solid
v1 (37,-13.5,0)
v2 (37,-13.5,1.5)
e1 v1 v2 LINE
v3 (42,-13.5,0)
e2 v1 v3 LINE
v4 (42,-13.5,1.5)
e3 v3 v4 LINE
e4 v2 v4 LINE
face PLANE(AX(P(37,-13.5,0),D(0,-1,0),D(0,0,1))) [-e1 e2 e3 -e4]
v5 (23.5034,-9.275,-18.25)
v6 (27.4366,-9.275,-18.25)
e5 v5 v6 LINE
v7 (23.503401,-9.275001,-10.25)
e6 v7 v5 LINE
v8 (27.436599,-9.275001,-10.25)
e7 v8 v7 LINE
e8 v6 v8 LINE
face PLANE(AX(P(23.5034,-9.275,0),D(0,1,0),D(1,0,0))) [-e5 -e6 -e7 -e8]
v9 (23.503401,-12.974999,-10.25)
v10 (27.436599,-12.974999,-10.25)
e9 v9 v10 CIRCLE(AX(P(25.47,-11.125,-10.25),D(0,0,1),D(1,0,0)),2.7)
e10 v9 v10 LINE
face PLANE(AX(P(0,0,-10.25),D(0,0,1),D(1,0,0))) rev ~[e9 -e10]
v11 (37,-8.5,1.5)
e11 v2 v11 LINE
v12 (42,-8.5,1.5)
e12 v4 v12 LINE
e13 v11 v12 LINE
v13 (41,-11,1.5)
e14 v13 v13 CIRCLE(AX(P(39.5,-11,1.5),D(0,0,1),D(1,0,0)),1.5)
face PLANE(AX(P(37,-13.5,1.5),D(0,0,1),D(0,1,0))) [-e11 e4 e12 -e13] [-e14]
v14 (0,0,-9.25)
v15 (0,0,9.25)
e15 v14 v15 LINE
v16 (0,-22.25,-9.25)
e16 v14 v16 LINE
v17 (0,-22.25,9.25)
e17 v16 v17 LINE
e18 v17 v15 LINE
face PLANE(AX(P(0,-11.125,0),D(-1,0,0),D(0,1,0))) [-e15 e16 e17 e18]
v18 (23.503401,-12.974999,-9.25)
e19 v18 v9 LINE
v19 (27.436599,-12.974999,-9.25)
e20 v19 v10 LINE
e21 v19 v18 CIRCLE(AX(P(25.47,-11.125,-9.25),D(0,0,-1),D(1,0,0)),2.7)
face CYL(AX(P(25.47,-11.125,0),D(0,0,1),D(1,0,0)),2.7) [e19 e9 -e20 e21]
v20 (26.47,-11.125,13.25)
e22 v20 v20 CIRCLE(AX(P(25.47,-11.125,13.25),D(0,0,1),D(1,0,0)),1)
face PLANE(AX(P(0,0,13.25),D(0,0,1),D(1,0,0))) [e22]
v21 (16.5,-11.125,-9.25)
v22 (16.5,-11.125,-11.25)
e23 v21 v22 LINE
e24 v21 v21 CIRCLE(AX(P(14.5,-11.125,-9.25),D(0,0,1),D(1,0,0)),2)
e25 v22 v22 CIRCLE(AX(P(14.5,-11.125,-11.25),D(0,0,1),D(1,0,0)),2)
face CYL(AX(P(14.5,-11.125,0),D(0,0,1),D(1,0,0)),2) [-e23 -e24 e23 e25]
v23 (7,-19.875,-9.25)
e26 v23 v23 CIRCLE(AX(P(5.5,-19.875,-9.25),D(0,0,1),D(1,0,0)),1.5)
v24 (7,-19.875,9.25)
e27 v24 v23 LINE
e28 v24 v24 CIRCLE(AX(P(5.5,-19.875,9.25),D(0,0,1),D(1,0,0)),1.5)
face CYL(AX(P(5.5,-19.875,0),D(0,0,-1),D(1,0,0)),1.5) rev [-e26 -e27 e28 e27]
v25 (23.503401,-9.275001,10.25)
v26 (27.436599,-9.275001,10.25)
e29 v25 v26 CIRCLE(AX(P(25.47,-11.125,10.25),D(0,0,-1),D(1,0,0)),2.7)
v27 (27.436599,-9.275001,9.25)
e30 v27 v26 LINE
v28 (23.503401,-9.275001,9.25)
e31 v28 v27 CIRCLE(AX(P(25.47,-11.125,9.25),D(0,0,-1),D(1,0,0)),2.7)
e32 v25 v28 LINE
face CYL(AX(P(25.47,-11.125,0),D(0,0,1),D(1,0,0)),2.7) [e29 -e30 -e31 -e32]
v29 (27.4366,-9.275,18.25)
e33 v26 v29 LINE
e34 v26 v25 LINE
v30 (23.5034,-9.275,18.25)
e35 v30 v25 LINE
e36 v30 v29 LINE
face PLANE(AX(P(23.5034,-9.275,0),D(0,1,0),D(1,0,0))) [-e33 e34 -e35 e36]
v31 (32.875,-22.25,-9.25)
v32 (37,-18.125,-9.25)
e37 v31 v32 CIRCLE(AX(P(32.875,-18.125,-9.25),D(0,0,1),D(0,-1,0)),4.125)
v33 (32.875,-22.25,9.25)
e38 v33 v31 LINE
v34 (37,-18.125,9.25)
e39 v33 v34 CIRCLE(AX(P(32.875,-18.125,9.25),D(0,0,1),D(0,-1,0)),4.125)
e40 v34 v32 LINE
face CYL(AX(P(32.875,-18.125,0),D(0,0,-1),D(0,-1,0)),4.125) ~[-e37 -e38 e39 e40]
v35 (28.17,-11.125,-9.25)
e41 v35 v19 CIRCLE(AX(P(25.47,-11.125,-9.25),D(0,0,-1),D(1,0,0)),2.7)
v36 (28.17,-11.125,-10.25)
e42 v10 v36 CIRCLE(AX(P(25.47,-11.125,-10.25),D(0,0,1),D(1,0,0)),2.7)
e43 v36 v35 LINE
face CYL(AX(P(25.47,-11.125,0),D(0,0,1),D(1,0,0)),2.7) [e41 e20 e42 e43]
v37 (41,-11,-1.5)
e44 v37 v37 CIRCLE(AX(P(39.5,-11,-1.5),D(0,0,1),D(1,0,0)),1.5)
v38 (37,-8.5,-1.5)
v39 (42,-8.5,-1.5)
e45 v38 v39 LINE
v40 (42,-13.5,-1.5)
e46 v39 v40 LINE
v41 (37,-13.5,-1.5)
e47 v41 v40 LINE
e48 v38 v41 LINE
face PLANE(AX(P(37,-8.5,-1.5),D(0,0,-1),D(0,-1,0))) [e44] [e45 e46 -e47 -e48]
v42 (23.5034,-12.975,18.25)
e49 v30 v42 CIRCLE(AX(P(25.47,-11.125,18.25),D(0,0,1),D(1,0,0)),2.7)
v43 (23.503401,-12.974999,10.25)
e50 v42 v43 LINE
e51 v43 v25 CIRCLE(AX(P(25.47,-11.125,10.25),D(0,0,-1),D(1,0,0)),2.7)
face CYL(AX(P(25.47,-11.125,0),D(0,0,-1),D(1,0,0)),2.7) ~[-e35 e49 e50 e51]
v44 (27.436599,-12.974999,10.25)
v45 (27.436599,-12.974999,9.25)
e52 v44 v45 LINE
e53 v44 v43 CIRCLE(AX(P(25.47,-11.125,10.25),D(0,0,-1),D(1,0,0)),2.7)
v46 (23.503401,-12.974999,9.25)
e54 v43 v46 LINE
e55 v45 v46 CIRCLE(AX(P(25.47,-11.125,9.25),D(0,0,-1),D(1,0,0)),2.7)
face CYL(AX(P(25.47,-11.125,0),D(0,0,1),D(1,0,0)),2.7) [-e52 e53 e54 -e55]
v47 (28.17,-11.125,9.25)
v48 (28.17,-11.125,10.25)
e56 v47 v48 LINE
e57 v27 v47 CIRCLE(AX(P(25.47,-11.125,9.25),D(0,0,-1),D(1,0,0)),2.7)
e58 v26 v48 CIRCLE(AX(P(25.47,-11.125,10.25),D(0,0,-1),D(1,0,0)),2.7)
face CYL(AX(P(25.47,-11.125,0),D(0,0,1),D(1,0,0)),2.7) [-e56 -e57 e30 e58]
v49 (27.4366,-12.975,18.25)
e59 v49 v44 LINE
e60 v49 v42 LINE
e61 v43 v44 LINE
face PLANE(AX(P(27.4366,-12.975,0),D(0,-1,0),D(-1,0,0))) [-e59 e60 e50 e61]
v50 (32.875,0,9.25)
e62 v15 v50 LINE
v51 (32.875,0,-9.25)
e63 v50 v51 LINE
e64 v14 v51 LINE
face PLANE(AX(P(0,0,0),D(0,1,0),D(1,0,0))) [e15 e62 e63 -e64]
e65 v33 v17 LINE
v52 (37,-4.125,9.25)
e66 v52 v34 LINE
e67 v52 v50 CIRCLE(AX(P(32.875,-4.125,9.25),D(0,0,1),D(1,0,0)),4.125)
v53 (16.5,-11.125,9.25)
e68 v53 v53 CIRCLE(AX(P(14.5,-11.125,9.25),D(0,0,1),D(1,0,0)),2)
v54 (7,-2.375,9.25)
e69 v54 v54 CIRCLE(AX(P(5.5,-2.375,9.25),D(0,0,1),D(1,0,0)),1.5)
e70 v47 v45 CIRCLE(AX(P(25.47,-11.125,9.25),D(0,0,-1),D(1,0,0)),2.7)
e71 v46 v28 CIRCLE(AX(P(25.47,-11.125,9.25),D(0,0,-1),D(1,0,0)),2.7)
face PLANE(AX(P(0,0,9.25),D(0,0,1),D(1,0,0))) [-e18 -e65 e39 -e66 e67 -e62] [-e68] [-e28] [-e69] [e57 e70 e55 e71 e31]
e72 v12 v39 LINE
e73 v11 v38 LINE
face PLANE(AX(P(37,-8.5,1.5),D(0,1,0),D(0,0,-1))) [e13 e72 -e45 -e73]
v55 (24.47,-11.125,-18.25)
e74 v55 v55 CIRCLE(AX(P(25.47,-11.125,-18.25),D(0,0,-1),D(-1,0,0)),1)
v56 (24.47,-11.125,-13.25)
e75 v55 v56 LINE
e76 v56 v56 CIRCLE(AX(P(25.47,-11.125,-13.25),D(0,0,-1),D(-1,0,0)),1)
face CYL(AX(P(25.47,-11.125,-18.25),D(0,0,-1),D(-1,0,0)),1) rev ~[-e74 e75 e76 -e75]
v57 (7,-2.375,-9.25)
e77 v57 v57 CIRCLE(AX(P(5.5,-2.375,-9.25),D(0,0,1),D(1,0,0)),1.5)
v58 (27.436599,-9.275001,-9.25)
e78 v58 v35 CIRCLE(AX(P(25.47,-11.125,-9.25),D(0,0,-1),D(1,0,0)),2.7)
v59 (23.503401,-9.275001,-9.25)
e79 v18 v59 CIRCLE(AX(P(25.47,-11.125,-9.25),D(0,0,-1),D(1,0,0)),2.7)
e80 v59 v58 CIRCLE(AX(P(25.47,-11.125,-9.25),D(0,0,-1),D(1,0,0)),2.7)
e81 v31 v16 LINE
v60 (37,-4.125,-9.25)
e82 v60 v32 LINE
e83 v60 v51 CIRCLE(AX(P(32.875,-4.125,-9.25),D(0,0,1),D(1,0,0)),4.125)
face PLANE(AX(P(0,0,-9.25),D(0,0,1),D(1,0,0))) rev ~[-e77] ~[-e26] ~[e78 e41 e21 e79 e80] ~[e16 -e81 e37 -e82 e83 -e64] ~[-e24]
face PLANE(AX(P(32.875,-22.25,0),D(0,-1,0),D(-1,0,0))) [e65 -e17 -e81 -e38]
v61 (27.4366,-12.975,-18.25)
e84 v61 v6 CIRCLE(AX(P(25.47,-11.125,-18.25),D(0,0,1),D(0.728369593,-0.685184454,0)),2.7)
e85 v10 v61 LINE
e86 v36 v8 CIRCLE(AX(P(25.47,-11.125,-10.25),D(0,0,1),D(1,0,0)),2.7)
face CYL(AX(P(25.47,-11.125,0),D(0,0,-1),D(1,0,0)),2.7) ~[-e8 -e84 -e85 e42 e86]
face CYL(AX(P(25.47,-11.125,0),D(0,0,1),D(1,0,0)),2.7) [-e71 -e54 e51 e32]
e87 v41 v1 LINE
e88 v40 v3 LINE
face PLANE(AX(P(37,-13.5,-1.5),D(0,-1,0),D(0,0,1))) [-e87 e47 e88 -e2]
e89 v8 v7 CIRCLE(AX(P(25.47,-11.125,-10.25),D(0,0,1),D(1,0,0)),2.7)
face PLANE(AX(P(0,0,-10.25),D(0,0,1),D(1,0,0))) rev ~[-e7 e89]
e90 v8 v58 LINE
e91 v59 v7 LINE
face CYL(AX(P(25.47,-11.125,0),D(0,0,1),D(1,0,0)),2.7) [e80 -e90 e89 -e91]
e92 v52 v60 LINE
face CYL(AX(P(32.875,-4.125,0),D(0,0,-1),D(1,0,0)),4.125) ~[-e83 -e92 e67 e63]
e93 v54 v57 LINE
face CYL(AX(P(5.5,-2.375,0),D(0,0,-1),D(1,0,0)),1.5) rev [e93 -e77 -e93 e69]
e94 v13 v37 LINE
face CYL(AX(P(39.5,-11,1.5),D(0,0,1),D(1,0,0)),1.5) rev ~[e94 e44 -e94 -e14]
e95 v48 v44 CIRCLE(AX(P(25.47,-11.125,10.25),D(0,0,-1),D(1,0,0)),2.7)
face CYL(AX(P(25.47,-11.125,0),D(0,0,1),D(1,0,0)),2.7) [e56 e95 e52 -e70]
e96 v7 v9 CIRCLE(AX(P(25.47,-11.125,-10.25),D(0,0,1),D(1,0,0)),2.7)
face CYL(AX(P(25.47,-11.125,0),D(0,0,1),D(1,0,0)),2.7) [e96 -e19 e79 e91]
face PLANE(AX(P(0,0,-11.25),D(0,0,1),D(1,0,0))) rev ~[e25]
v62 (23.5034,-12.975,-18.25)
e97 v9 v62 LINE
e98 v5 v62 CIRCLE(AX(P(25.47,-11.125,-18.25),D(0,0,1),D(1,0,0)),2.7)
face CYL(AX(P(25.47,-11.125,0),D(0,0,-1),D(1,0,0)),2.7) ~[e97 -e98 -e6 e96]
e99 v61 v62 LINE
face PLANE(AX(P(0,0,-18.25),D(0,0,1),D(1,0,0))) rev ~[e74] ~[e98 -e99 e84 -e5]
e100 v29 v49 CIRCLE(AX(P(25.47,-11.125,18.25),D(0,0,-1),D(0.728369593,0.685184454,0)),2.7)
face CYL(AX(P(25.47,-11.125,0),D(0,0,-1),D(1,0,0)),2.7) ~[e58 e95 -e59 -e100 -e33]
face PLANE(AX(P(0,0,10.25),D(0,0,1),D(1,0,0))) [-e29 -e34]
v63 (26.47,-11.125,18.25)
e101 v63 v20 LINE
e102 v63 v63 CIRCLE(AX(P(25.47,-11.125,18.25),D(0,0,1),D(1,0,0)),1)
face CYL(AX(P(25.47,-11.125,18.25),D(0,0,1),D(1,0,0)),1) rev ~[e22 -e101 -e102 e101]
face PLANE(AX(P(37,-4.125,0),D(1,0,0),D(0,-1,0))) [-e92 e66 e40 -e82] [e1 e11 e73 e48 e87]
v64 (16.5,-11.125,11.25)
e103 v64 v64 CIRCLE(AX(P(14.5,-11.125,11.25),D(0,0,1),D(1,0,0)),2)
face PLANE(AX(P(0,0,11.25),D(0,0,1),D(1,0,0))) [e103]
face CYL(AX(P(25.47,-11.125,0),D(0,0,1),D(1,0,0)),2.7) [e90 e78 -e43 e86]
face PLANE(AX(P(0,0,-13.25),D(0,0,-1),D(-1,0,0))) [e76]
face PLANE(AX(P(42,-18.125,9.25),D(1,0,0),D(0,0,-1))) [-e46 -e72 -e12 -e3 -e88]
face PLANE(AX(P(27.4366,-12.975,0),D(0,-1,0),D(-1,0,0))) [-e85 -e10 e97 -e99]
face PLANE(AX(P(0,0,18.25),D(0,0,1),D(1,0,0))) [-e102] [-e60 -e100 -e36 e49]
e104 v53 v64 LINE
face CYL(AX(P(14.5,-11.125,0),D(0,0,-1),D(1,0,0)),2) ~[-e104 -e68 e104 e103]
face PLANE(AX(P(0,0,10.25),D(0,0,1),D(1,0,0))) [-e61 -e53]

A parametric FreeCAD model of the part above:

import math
import FreeCAD as App
import Part
import Sketcher
Q = App.Units.Quantity

doc = App.newDocument("Part")
body = doc.addObject("PartDesign::Body", "Body")

# Sketch on XY plane
sketch1 = doc.addObject("Sketcher::SketchObject", "Sketch")
body.addObject(sketch1)
sketch1.AttachmentSupport = (doc.XY_Plane, [""])
sketch1.MapMode = "FlatFace"
sketch1.addGeometry([
    Part.LineSegment(App.Vector(32.9, 0, 0), App.Vector(0, 0, 0)),  # 0
    Part.LineSegment(App.Vector(0, 0, 0), App.Vector(0, -22.2, 0)),  # 1
    Part.LineSegment(App.Vector(0, -22.2, 0), App.Vector(32.9, -22.2, 0)),  # 2
    Part.ArcOfCircle(Part.Circle(App.Vector(32.9, -18.1, 0), App.Vector(0, 0, 1), 4.1), math.radians(-90), math.radians(0)),  # 3
    Part.LineSegment(App.Vector(37, -18.1, 0), App.Vector(37, -4.1, 0)),  # 4
    Part.ArcOfCircle(Part.Circle(App.Vector(32.9, -4.1, 0), App.Vector(0, 0, 1), 4.1), math.radians(0), math.radians(90)),  # 5
    Part.Circle(App.Vector(5.5, -19.9, 0), App.Vector(0, 0, 1), 1.5),  # 6
    Part.Circle(App.Vector(14.5, -11.1, 0), App.Vector(0, 0, 1), 2),  # 7
    Part.Circle(App.Vector(5.5, -2.4, 0), App.Vector(0, 0, 1), 1.5),  # 8
    Part.Circle(App.Vector(25.5, -11.1, 0), App.Vector(0, 0, 1), 2.7),  # 9
], False)
sketch1.addConstraint([
    Sketcher.Constraint("Coincident", 0, 2, 1, 1),
    Sketcher.Constraint("Coincident", 1, 2, 2, 1),
    Sketcher.Constraint("Tangent", 2, 2, 3, 1),
    Sketcher.Constraint("Tangent", 3, 2, 4, 1),
    Sketcher.Constraint("Tangent", 4, 2, 5, 1),
    Sketcher.Constraint("Tangent", 5, 2, 0, 1),
    Sketcher.Constraint("Horizontal", 0),
    Sketcher.Constraint("Vertical", 1),
    Sketcher.Constraint("Horizontal", 2),
    Sketcher.Constraint("Vertical", 4),
    Sketcher.Constraint("Coincident", 0, 2, -1, 1),
    Sketcher.Constraint("Equal", 3, 5),
    Sketcher.Constraint("Equal", 6, 8),
    Sketcher.Constraint("Horizontal", 7, 3, 9, 3),
    Sketcher.Constraint("Vertical", 6, 3, 8, 3),
    Sketcher.Constraint("Diameter", 6, Q("3 mm")),
    Sketcher.Constraint("Diameter", 7, Q("4 mm")),
    Sketcher.Constraint("Diameter", 9, Q("5.4 mm")),
    Sketcher.Constraint("DistanceY", 4, 1, 4, 2, Q("14 mm")),
    Sketcher.Constraint("DistanceX", -1, 1, 3, 2, Q("37 mm")),
    Sketcher.Constraint("DistanceY", 1, 2, 1, 1, Q("22.25 mm")),
    Sketcher.Constraint("DistanceX", -1, 1, 6, 3, Q("5.5 mm")),
    Sketcher.Constraint("DistanceX", -1, 1, 7, 3, Q("14.5 mm")),
    Sketcher.Constraint("DistanceY", 6, 3, 7, 3, Q("8.75 mm")),
    Sketcher.Constraint("DistanceY", 7, 3, 8, 3, Q("8.75 mm")),
    Sketcher.Constraint("DistanceX", 9, 3, 3, 2, Q("11.53 mm")),
    Sketcher.Constraint("DistanceY", 3, 3, 7, 3, Q("7 mm")),
])
pad1 = doc.addObject("PartDesign::Pad", "Pad")
body.addObject(pad1)
pad1.Profile = sketch1
pad1.Length = 18.5
pad1.Midplane = True

# Sketch on XY plane
sketch2 = doc.addObject("Sketcher::SketchObject", "Sketch001")
body.addObject(sketch2)
sketch2.AttachmentSupport = (doc.XY_Plane, [""])
sketch2.MapMode = "FlatFace"
sketch2.addGeometry(Part.Circle(App.Vector(14.5, -11.1, 0), App.Vector(0, 0, 1), 2), False)
sketch2.addConstraint([
    Sketcher.Constraint("Diameter", 0, Q("4 mm")),
    Sketcher.Constraint("DistanceX", -1, 1, 0, 3, Q("14.5 mm")),
    Sketcher.Constraint("DistanceY", 0, 3, -1, 1, Q("11.125 mm")),
])
pad2 = doc.addObject("PartDesign::Pad", "Pad001")
body.addObject(pad2)
pad2.Profile = sketch2
pad2.Length = 22.5
pad2.Midplane = True

# Sketch on XY plane
sketch3 = doc.addObject("Sketcher::SketchObject", "Sketch002")
body.addObject(sketch3)
sketch3.AttachmentSupport = (doc.XY_Plane, [""])
sketch3.MapMode = "FlatFace"
sketch3.addGeometry(Part.Circle(App.Vector(25.5, -11.1, 0), App.Vector(0, 0, 1), 2.7), False)
sketch3.addConstraint([
    Sketcher.Constraint("Diameter", 0, Q("5.4 mm")),
    Sketcher.Constraint("DistanceX", -1, 1, 0, 3, Q("25.47 mm")),
    Sketcher.Constraint("DistanceY", 0, 3, -1, 1, Q("11.125 mm")),
])
pad3 = doc.addObject("PartDesign::Pad", "Pad002")
body.addObject(pad3)
pad3.Profile = sketch3
pad3.Length = 20.5
pad3.Midplane = True

# Sketch on XY plane
sketch4 = doc.addObject("Sketcher::SketchObject", "Sketch003")
body.addObject(sketch4)
sketch4.AttachmentSupport = (doc.XY_Plane, [""])
sketch4.MapMode = "FlatFace"
sketch4.addGeometry([
    Part.ArcOfCircle(Part.Circle(App.Vector(25.5, -11.1, 0), App.Vector(0, 0, 1), 2.7), math.radians(-43), math.radians(43)),
    Part.LineSegment(App.Vector(27.4, -9.3, 0), App.Vector(23.5, -9.3, 0)),
    Part.ArcOfCircle(Part.Circle(App.Vector(25.5, -11.1, 0), App.Vector(0, 0, 1), 2.7), math.radians(137), math.radians(223)),
    Part.LineSegment(App.Vector(23.5, -13, 0), App.Vector(27.4, -13, 0)),
], False)
sketch4.addConstraint([
    Sketcher.Constraint("Coincident", 0, 2, 1, 1),
    Sketcher.Constraint("Coincident", 1, 2, 2, 1),
    Sketcher.Constraint("Coincident", 2, 2, 3, 1),
    Sketcher.Constraint("Coincident", 3, 2, 0, 1),
    Sketcher.Constraint("Horizontal", 1),
    Sketcher.Constraint("Horizontal", 3),
    Sketcher.Constraint("Coincident", 2, 3, 0, 3),
    Sketcher.Constraint("Equal", 0, 2),
    Sketcher.Constraint("Vertical", 1, 2, 2, 2),
    Sketcher.Constraint("Radius", 0, Q("2.7 mm")),
    Sketcher.Constraint("DistanceY", 2, 2, 1, 2, Q("3.7 mm")),
    Sketcher.Constraint("DistanceX", -1, 1, 0, 3, Q("25.47 mm")),
    Sketcher.Constraint("DistanceY", 0, 3, -1, 1, Q("11.125 mm")),
])
pad4 = doc.addObject("PartDesign::Pad", "Pad003")
body.addObject(pad4)
pad4.Profile = sketch4
pad4.Length = 36.5
pad4.Midplane = True

# Sketch on XY plane
sketch5 = doc.addObject("Sketcher::SketchObject", "Sketch004")
body.addObject(sketch5)
sketch5.AttachmentSupport = (doc.XY_Plane, [""])
sketch5.MapMode = "FlatFace"
sketch5.AttachmentOffset = App.Placement(App.Vector(0, 0, -18.25), App.Rotation())
sketch5.addGeometry(Part.Circle(App.Vector(25.5, -11.1, 0), App.Vector(0, 0, 1), 1), False)
sketch5.addConstraint([
    Sketcher.Constraint("Diameter", 0, Q("2 mm")),
    Sketcher.Constraint("DistanceX", -1, 1, 0, 3, Q("25.47 mm")),
    Sketcher.Constraint("DistanceY", 0, 3, -1, 1, Q("11.125 mm")),
])
pocket1 = doc.addObject("PartDesign::Pocket", "Pocket")
body.addObject(pocket1)
pocket1.Profile = sketch5
pocket1.Length = 5
pocket1.Reversed = True

# Sketch on XY plane
sketch6 = doc.addObject("Sketcher::SketchObject", "Sketch005")
body.addObject(sketch6)
sketch6.AttachmentSupport = (doc.XY_Plane, [""])
sketch6.MapMode = "FlatFace"
sketch6.AttachmentOffset = App.Placement(App.Vector(0, 0, 18.25), App.Rotation())
sketch6.addGeometry(Part.Circle(App.Vector(25.5, -11.1, 0), App.Vector(0, 0, 1), 1), False)
sketch6.addConstraint([
    Sketcher.Constraint("Diameter", 0, Q("2 mm")),
    Sketcher.Constraint("DistanceX", -1, 1, 0, 3, Q("25.47 mm")),
    Sketcher.Constraint("DistanceY", 0, 3, -1, 1, Q("11.125 mm")),
])
pocket2 = doc.addObject("PartDesign::Pocket", "Pocket001")
body.addObject(pocket2)
pocket2.Profile = sketch6
pocket2.Length = 5

# Sketch on YZ plane
sketch7 = doc.addObject("Sketcher::SketchObject", "Sketch006")
body.addObject(sketch7)
sketch7.AttachmentSupport = (doc.YZ_Plane, [""])
sketch7.MapMode = "FlatFace"
sketch7.AttachmentOffset = App.Placement(App.Vector(0, 0, 37), App.Rotation())
sketch7.addGeometry([
    Part.LineSegment(App.Vector(-8.5, -1.5, 0), App.Vector(-8.5, 1.5, 0)),
    Part.LineSegment(App.Vector(-8.5, 1.5, 0), App.Vector(-13.5, 1.5, 0)),
    Part.LineSegment(App.Vector(-13.5, 1.5, 0), App.Vector(-13.5, -1.5, 0)),
    Part.LineSegment(App.Vector(-13.5, -1.5, 0), App.Vector(-8.5, -1.5, 0)),
], False)
sketch7.addConstraint([
    Sketcher.Constraint("Coincident", 0, 2, 1, 1),
    Sketcher.Constraint("Coincident", 1, 2, 2, 1),
    Sketcher.Constraint("Coincident", 2, 2, 3, 1),
    Sketcher.Constraint("Coincident", 3, 2, 0, 1),
    Sketcher.Constraint("Vertical", 0),
    Sketcher.Constraint("Horizontal", 1),
    Sketcher.Constraint("Vertical", 2),
    Sketcher.Constraint("Horizontal", 3),
    Sketcher.Constraint("DistanceX", 1, 2, 1, 1, Q("5 mm")),
    Sketcher.Constraint("DistanceY", 0, 1, 0, 2, Q("3 mm")),
    Sketcher.Constraint("DistanceX", 0, 2, -1, 1, Q("8.5 mm")),
    Sketcher.Constraint("DistanceY", -1, 1, 0, 2, Q("1.5 mm")),
])
pad5 = doc.addObject("PartDesign::Pad", "Pad004")
body.addObject(pad5)
pad5.Profile = sketch7
pad5.Length = 5

# Sketch on XY plane
sketch8 = doc.addObject("Sketcher::SketchObject", "Sketch007")
body.addObject(sketch8)
sketch8.AttachmentSupport = (doc.XY_Plane, [""])
sketch8.MapMode = "FlatFace"
sketch8.AttachmentOffset = App.Placement(App.Vector(0, 0, 1.5), App.Rotation())
sketch8.addGeometry(Part.Circle(App.Vector(39.5, -11, 0), App.Vector(0, 0, 1), 1.5), False)
sketch8.addConstraint([
    Sketcher.Constraint("Diameter", 0, Q("3 mm")),
    Sketcher.Constraint("DistanceY", 0, 3, -1, 1, Q("11 mm")),
    Sketcher.Constraint("DistanceX", -1, 1, 0, 3, Q("39.5 mm")),
])
pocket3 = doc.addObject("PartDesign::Pocket", "Pocket002")
body.addObject(pocket3)
pocket3.Profile = sketch8
pocket3.Length = 5

doc.recompute()
